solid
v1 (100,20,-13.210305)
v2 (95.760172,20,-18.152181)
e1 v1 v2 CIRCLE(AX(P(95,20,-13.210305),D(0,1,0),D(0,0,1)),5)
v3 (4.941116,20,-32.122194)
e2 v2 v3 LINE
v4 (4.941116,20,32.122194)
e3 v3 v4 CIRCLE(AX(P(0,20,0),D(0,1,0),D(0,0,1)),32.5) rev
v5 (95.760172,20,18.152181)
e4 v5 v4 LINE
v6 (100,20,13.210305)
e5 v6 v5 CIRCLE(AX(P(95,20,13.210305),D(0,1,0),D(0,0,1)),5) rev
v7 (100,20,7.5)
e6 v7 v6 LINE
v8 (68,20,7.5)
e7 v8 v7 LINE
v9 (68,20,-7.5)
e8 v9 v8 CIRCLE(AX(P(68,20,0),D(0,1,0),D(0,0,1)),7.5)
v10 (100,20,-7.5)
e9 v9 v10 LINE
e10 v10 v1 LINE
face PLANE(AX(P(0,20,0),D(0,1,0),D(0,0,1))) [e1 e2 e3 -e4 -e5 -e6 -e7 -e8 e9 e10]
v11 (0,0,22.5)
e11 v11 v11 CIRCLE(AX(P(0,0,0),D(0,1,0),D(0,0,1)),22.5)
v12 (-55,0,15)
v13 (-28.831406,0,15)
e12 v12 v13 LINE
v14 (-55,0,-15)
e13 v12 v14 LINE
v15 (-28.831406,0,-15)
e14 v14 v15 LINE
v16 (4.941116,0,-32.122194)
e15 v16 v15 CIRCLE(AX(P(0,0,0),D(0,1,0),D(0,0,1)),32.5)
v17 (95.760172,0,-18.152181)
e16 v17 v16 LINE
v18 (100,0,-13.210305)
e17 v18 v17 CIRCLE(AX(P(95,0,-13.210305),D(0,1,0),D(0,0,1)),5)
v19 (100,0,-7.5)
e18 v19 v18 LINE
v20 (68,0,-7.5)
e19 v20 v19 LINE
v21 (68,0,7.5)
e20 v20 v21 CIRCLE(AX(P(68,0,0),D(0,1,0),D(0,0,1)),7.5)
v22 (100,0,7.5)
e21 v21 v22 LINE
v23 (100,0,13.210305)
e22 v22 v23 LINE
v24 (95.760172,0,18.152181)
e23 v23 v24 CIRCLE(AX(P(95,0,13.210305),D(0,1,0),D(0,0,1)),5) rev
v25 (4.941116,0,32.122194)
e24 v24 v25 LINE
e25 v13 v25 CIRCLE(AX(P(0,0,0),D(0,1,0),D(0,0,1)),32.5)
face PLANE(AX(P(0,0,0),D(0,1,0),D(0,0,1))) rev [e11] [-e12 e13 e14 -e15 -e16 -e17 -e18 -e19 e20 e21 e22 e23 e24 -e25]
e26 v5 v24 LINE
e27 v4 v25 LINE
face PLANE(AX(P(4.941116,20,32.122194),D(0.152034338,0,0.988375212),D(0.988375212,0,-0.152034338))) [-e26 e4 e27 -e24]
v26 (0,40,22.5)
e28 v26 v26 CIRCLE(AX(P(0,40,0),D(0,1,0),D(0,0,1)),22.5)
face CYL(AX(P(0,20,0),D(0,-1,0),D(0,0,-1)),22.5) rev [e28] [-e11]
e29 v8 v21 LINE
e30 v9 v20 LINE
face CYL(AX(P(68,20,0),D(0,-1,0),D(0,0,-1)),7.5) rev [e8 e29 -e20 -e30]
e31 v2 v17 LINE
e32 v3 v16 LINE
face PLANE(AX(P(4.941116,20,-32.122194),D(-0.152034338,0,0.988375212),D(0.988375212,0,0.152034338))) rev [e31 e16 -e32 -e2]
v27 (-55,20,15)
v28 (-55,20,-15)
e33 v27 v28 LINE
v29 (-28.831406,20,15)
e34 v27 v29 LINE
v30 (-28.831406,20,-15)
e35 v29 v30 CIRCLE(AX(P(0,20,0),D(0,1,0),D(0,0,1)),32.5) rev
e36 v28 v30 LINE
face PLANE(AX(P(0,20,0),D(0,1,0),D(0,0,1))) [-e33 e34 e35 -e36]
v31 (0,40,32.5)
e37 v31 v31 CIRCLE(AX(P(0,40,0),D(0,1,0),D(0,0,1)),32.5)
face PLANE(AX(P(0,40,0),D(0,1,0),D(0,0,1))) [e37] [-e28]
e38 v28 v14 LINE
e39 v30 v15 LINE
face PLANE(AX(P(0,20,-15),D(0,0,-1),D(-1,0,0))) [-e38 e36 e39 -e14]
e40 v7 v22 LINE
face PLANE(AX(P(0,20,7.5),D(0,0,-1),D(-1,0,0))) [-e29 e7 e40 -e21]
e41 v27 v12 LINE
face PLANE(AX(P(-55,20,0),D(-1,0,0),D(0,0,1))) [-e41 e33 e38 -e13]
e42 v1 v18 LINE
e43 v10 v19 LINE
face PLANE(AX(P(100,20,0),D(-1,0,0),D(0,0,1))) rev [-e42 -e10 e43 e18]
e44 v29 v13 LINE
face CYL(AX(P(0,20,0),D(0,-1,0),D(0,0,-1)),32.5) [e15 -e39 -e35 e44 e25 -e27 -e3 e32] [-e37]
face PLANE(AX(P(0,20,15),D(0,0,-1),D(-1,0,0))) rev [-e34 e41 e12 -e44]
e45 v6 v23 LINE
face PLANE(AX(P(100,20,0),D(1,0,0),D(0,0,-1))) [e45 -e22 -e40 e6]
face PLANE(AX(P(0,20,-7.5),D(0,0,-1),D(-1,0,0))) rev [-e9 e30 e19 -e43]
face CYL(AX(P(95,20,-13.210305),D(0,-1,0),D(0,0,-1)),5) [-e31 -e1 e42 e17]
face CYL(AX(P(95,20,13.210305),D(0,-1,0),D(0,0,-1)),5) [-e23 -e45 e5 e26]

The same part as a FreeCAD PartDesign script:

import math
import FreeCAD as App
import Part
import Sketcher
from FreeCAD import Vector
Q = App.Units.Quantity

doc = App.newDocument("Part")
body = doc.addObject("PartDesign::Body", "Body")

# Sketch on XZ plane
sketch1 = doc.addObject("Sketcher::SketchObject", "Sketch")
body.addObject(sketch1)
sketch1.AttachmentSupport = (doc.XZ_Plane, [""])
sketch1.MapMode = "FlatFace"
sketch1.addGeometry(Part.ArcOfCircle(Part.Circle(Vector(0, 0, 0), Vector(0, 0, 1), 32.5), math.radians(81.255162), math.radians(152.513574)), False)
sketch1.addGeometry(Part.LineSegment(Vector(4.941116, 32.122194, 0), Vector(95.760172, 18.152181, 0)), False)
sketch1.addGeometry(Part.ArcOfCircle(Part.Circle(Vector(95, 13.210305, 0), Vector(0, 0, 1), 5), math.radians(0), math.radians(81.255162)), False)
sketch1.addGeometry(Part.LineSegment(Vector(100, 13.210305, 0), Vector(100, 7.5, 0)), False)
sketch1.addGeometry(Part.LineSegment(Vector(100, 7.5, 0), Vector(68, 7.5, 0)), False)
sketch1.addGeometry(Part.ArcOfCircle(Part.Circle(Vector(68, 0, 0), Vector(0, 0, 1), 7.5), math.radians(90), math.radians(180)), False)
sketch1.addGeometry(Part.ArcOfCircle(Part.Circle(Vector(68, 0, 0), Vector(0, 0, 1), 7.5), math.radians(180), math.radians(270)), False)
sketch1.addGeometry(Part.LineSegment(Vector(68, -7.5, 0), Vector(100, -7.5, 0)), False)
sketch1.addGeometry(Part.LineSegment(Vector(100, -7.5, 0), Vector(100, -13.210305, 0)), False)
sketch1.addGeometry(Part.ArcOfCircle(Part.Circle(Vector(95, -13.210305, 0), Vector(0, 0, 1), 5), math.radians(-81.255162), math.radians(0)), False)
sketch1.addGeometry(Part.LineSegment(Vector(95.760172, -18.152181, 0), Vector(4.941116, -32.122194, 0)), False)
sketch1.addGeometry(Part.ArcOfCircle(Part.Circle(Vector(0, 0, 0), Vector(0, 0, 1), 32.5), math.radians(-152.513574), math.radians(-81.255162)), False)
sketch1.addGeometry(Part.LineSegment(Vector(-28.831406, -15, 0), Vector(-55, -15, 0)), False)
sketch1.addGeometry(Part.LineSegment(Vector(-55, -15, 0), Vector(-55, 15, 0)), False)
sketch1.addGeometry(Part.LineSegment(Vector(-55, 15, 0), Vector(-28.831406, 15, 0)), False)
sketch1.addGeometry(Part.Circle(Vector(0, 0, 0), Vector(0, 0, 1), 22.5), False)
sketch1.addConstraint(Sketcher.Constraint("Tangent", 0, 1, 1, 1))
sketch1.addConstraint(Sketcher.Constraint("Tangent", 1, 2, 2, 2))
sketch1.addConstraint(Sketcher.Constraint("Tangent", 2, 1, 3, 1))
sketch1.addConstraint(Sketcher.Constraint("Coincident", 3, 2, 4, 1))
sketch1.addConstraint(Sketcher.Constraint("Tangent", 4, 2, 5, 1))
sketch1.addConstraint(Sketcher.Constraint("Tangent", 5, 2, 6, 1))
sketch1.addConstraint(Sketcher.Constraint("Tangent", 6, 2, 7, 1))
sketch1.addConstraint(Sketcher.Constraint("Coincident", 7, 2, 8, 1))
sketch1.addConstraint(Sketcher.Constraint("Tangent", 8, 2, 9, 2))
sketch1.addConstraint(Sketcher.Constraint("Tangent", 9, 1, 10, 1))
sketch1.addConstraint(Sketcher.Constraint("Tangent", 10, 2, 11, 2))
sketch1.addConstraint(Sketcher.Constraint("Coincident", 11, 1, 12, 1))
sketch1.addConstraint(Sketcher.Constraint("Coincident", 12, 2, 13, 1))
sketch1.addConstraint(Sketcher.Constraint("Coincident", 13, 2, 14, 1))
sketch1.addConstraint(Sketcher.Constraint("Coincident", 14, 2, 0, 2))
sketch1.addConstraint(Sketcher.Constraint("Vertical", 3))
sketch1.addConstraint(Sketcher.Constraint("Horizontal", 4))
sketch1.addConstraint(Sketcher.Constraint("Horizontal", 7))
sketch1.addConstraint(Sketcher.Constraint("Vertical", 8))
sketch1.addConstraint(Sketcher.Constraint("Horizontal", 12))
sketch1.addConstraint(Sketcher.Constraint("Vertical", 13))
sketch1.addConstraint(Sketcher.Constraint("Horizontal", 14))
sketch1.addConstraint(Sketcher.Constraint("Coincident", 0, 3, -1, 1))
sketch1.addConstraint(Sketcher.Constraint("Coincident", 11, 3, -1, 1))
sketch1.addConstraint(Sketcher.Constraint("Coincident", 15, 3, -1, 1))
sketch1.addConstraint(Sketcher.Constraint("Equal", 5, 6))
sketch1.addConstraint(Sketcher.Constraint("Equal", 2, 9))
sketch1.addConstraint(Sketcher.Constraint("Equal", 0, 11))
sketch1.addConstraint(Sketcher.Constraint("Symmetric", 2, 3, 9, 3, -1))
sketch1.addConstraint(Sketcher.Constraint("PointOnObject", 5, 3, -1))
sketch1.addConstraint(Sketcher.Constraint("PointOnObject", 5, 2, -1))
sketch1.addConstraint(Sketcher.Constraint("Vertical", 11, 1, 14, 2))
sketch1.addConstraint(Sketcher.Constraint("Diameter", 15, Q("45 mm")))
sketch1.addConstraint(Sketcher.Constraint("Radius", 2, Q("5 mm")))
sketch1.addConstraint(Sketcher.Constraint("Radius", 0, Q("32.5 mm")))
sketch1.addConstraint(Sketcher.Constraint("Radius", 5, Q("7.5 mm")))
sketch1.addConstraint(Sketcher.Constraint("DistanceX", 4, 2, 4, 1, Q("32 mm")))
sketch1.addConstraint(Sketcher.Constraint("DistanceY", 13, 1, 13, 2, Q("30 mm")))
sketch1.addConstraint(Sketcher.Constraint("DistanceX", -1, 1, 2, 3, Q("95 mm")))
sketch1.addConstraint(Sketcher.Constraint("DistanceX", 12, 2, -1, 1, Q("55 mm")))
sketch1.addConstraint(Sketcher.Constraint("DistanceY", 3, 2, 3, 1, Q("5.710305 mm")))
pad1 = doc.addObject("PartDesign::Pad", "Pad")
body.addObject(pad1)
pad1.Profile = sketch1
pad1.Length = 20
pad1.Reversed = True

# Sketch on XZ plane
sketch2 = doc.addObject("Sketcher::SketchObject", "Sketch001")
body.addObject(sketch2)
sketch2.AttachmentSupport = (doc.XZ_Plane, [""])
sketch2.MapMode = "FlatFace"
sketch2.addGeometry(Part.ArcOfCircle(Part.Circle(Vector(0, 0, 0), Vector(0, 0, 1), 32.5), math.radians(0), math.radians(81.255162)), False)
sketch2.addGeometry(Part.ArcOfCircle(Part.Circle(Vector(0, 0, 0), Vector(0, 0, 1), 32.5), math.radians(-81.255162), math.radians(0)), False)
sketch2.addGeometry(Part.ArcOfCircle(Part.Circle(Vector(0, 0, 0), Vector(0, 0, 1), 32.5), math.radians(-152.513574), math.radians(-81.255162)), False)
sketch2.addGeometry(Part.ArcOfCircle(Part.Circle(Vector(0, 0, 0), Vector(0, 0, 1), 32.5), math.radians(152.513574), math.radians(207.486426)), False)
sketch2.addGeometry(Part.ArcOfCircle(Part.Circle(Vector(0, 0, 0), Vector(0, 0, 1), 32.5), math.radians(81.255162), math.radians(152.513574)), False)
sketch2.addGeometry(Part.Circle(Vector(0, 0, 0), Vector(0, 0, 1), 22.5), False)
sketch2.addConstraint(Sketcher.Constraint("Tangent", 0, 1, 1, 2))
sketch2.addConstraint(Sketcher.Constraint("Tangent", 1, 1, 2, 2))
sketch2.addConstraint(Sketcher.Constraint("Tangent", 2, 1, 3, 2))
sketch2.addConstraint(Sketcher.Constraint("Tangent", 3, 1, 4, 2))
sketch2.addConstraint(Sketcher.Constraint("Tangent", 4, 1, 0, 2))
sketch2.addConstraint(Sketcher.Constraint("Coincident", 0, 3, -1, 1))
sketch2.addConstraint(Sketcher.Constraint("Coincident", 2, 3, -1, 1))
sketch2.addConstraint(Sketcher.Constraint("Coincident", 5, 3, -1, 1))
sketch2.addConstraint(Sketcher.Constraint("PointOnObject", 0, 1, -1))
sketch2.addConstraint(Sketcher.Constraint("Vertical", 2, 1, 3, 1))
sketch2.addConstraint(Sketcher.Constraint("Vertical", 1, 1, 4, 1))
sketch2.addConstraint(Sketcher.Constraint("Diameter", 5, Q("45 mm")))
sketch2.addConstraint(Sketcher.Constraint("Radius", 0, Q("32.5 mm")))
sketch2.addConstraint(Sketcher.Constraint("DistanceY", 2, 1, -1, 1, Q("15 mm")))
sketch2.addConstraint(Sketcher.Constraint("DistanceX", -1, 1, 1, 1, Q("4.941116 mm")))
pad2 = doc.addObject("PartDesign::Pad", "Pad001")
body.addObject(pad2)
pad2.Profile = sketch2
pad2.Length = 40
pad2.Reversed = True

doc.recompute()
